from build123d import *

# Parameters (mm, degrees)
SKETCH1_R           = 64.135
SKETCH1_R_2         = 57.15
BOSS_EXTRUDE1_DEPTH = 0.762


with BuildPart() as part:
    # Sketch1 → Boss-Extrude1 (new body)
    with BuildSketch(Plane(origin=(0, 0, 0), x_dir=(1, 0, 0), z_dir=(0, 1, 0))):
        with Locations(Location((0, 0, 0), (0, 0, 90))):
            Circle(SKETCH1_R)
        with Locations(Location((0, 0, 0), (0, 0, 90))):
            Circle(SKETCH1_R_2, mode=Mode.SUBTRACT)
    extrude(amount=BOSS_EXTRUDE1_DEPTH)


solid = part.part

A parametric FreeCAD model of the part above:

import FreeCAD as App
import Part
import Sketcher
Q = App.Units.Quantity

doc = App.newDocument("Part")
body = doc.addObject("PartDesign::Body", "Body")

# Sketch on XZ plane
sketch1 = body.newObject("Sketcher::SketchObject", "Sketch")
sketch1.AttachmentSupport = (doc.getObject("XZ_Plane"), [""])
sketch1.MapMode = "FlatFace"
sketch1.addGeometry(Part.Circle(App.Vector(0, 0, 0), App.Vector(0, 0, 1), 64), False)
sketch1.addGeometry(Part.Circle(App.Vector(0, 0, 0), App.Vector(0, 0, 1), 57), False)
sketch1.addConstraint(Sketcher.Constraint("Coincident", 0, 3, -1, 1))
sketch1.addConstraint(Sketcher.Constraint("Coincident", 1, 3, -1, 1))
sketch1.addConstraint(Sketcher.Constraint("Diameter", 1, Q("4.5 in")))
sketch1.addConstraint(Sketcher.Constraint("Diameter", 0, Q("5.05 in")))
pad1 = body.newObject("PartDesign::Pad", "Pad")
pad1.Profile = sketch1
pad1.Length = Q("0.03 in")
pad1.Reversed = True

doc.recompute()
